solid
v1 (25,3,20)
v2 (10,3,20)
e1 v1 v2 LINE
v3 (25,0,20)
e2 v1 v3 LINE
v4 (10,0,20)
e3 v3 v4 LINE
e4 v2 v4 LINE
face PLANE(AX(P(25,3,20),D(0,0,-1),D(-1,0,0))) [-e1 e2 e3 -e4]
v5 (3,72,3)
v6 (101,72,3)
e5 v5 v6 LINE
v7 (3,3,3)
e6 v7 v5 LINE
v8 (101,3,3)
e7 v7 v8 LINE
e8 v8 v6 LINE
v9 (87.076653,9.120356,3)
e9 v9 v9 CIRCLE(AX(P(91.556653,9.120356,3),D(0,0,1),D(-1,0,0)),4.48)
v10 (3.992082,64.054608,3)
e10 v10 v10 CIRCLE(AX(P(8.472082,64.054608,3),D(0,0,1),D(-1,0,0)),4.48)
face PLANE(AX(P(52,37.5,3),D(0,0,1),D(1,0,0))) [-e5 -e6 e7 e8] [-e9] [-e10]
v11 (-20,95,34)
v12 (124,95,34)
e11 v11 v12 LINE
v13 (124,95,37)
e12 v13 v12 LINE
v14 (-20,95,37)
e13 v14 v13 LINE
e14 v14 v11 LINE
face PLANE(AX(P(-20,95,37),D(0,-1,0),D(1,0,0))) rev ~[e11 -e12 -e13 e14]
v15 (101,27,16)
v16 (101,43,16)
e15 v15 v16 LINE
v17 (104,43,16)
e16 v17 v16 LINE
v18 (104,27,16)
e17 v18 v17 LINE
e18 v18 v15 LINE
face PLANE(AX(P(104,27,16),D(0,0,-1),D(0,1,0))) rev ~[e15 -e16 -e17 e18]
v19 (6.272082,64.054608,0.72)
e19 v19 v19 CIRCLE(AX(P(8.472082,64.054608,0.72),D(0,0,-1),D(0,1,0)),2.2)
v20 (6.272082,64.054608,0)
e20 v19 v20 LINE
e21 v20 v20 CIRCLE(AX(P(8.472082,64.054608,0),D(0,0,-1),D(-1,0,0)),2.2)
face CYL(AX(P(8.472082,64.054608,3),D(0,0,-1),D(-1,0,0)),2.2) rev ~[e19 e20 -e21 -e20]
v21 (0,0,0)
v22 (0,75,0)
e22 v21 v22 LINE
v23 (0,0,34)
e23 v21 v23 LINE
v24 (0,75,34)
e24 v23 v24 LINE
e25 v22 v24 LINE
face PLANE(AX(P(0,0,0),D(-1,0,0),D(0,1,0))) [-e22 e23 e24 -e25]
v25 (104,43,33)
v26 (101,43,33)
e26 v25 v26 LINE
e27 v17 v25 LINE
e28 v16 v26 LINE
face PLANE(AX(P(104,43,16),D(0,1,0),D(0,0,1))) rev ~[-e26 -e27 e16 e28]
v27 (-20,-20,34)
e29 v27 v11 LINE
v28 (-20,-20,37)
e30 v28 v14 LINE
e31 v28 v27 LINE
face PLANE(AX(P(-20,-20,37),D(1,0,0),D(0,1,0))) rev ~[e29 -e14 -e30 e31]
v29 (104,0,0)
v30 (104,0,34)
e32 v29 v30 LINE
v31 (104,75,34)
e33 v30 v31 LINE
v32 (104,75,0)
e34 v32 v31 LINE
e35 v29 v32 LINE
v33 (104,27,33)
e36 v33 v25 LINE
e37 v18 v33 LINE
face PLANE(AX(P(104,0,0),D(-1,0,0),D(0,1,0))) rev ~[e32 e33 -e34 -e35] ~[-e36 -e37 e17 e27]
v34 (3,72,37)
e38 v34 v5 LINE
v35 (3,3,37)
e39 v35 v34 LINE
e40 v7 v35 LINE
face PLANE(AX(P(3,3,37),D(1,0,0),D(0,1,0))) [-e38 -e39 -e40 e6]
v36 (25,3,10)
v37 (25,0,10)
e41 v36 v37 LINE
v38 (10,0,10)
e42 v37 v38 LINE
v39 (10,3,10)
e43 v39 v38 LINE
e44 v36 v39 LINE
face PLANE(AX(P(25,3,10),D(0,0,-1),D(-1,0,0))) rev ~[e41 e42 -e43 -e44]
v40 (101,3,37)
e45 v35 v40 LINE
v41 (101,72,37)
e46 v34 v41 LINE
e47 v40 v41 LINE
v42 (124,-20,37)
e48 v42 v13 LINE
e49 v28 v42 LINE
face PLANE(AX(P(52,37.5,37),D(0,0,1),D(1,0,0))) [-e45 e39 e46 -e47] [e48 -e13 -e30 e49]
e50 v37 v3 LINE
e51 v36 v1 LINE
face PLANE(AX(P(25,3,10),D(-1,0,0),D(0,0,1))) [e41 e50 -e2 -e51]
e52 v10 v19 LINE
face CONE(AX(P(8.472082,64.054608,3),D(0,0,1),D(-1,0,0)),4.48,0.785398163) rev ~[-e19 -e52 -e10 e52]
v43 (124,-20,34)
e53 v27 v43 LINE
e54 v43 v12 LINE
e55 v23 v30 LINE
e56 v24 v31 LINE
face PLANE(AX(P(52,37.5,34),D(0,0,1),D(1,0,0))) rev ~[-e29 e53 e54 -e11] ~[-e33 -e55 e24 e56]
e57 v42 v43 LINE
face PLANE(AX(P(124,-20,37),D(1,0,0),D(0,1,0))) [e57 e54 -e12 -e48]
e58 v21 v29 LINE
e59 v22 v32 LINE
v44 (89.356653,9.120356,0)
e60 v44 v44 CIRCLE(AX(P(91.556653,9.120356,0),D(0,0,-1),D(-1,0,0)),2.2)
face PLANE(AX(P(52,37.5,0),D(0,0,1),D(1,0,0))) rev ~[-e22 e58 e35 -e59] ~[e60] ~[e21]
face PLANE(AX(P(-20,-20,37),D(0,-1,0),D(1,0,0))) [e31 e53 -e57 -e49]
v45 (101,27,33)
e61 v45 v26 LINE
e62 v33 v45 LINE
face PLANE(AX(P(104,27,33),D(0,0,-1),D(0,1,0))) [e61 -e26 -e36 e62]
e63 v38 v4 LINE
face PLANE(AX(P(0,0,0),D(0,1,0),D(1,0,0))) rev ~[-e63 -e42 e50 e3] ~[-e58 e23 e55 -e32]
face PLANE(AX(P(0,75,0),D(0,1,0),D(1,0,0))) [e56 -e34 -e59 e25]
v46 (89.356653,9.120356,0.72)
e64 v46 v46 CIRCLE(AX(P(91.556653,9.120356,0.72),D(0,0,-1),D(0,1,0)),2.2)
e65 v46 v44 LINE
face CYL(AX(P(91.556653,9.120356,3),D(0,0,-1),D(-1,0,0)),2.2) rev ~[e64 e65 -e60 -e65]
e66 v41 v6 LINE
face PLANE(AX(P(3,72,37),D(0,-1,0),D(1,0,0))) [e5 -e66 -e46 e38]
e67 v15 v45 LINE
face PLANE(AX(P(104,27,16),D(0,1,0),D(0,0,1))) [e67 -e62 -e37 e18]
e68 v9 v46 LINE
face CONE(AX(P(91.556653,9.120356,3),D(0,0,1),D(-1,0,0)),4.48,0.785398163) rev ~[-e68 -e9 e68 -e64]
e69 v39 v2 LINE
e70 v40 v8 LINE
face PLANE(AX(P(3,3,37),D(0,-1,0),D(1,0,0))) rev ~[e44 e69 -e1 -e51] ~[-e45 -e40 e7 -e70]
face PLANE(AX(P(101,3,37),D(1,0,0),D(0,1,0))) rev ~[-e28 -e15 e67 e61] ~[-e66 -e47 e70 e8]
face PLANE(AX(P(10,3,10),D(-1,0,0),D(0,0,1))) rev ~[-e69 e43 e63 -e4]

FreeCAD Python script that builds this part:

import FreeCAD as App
import Part
import Sketcher


def faces_at(feature, points):
    """Names of the faces that lie closest to the given points."""
    faces = feature.Shape.Faces
    near = lambda p: min(range(len(faces)), key=lambda i: faces[i].distToShape(Part.Vertex(*p))[0])
    return sorted({f"Face{near(p) + 1}" for p in points})

doc = App.newDocument("Part")
body = doc.addObject("PartDesign::Body", "Body")

sketch1 = body.newObject("Sketcher::SketchObject", "Sketch")
sketch1.AttachmentSupport = (doc.getObject("XY_Plane"), [""])
sketch1.MapMode = "FlatFace"
sketch1.addGeometry(Part.LineSegment(App.Vector(0, 75, 0), App.Vector(0, 0, 0)), False)
sketch1.addGeometry(Part.LineSegment(App.Vector(0, 0, 0), App.Vector(104, 0, 0)), False)
sketch1.addGeometry(Part.LineSegment(App.Vector(104, 0, 0), App.Vector(104, 75, 0)), False)
sketch1.addGeometry(Part.LineSegment(App.Vector(104, 75, 0), App.Vector(0, 75, 0)), False)
sketch1.addConstraint(Sketcher.Constraint("Coincident", 0, 2, 1, 1))
sketch1.addConstraint(Sketcher.Constraint("Coincident", 1, 2, 2, 1))
sketch1.addConstraint(Sketcher.Constraint("Coincident", 2, 2, 3, 1))
sketch1.addConstraint(Sketcher.Constraint("Coincident", 3, 2, 0, 1))
sketch1.addConstraint(Sketcher.Constraint("Vertical", 0))
sketch1.addConstraint(Sketcher.Constraint("Horizontal", 1))
sketch1.addConstraint(Sketcher.Constraint("Vertical", 2))
sketch1.addConstraint(Sketcher.Constraint("Horizontal", 3))
sketch1.addConstraint(Sketcher.Constraint("Coincident", 0, 2, -1, 1))
sketch1.addConstraint(Sketcher.Constraint("DistanceX", 1, 1, 1, 2, 104.0))
sketch1.addConstraint(Sketcher.Constraint("DistanceY", 0, 2, 0, 1, 75.0))
pad1 = body.newObject("PartDesign::Pad", "Pad")
pad1.Profile = sketch1
pad1.Length = 37
doc.recompute()

thickness = body.newObject("PartDesign::Thickness", "Thickness")
thickness.Base = (pad1, faces_at(pad1, [(52, 37.5, 37)]))
thickness.Value = 3
thickness.Reversed = True
thickness.Join = "Arc"

sketch2 = body.newObject("Sketcher::SketchObject", "Sketch001")
sketch2.AttachmentSupport = (doc.getObject("XY_Plane"), [""])
sketch2.MapMode = "FlatFace"
sketch2.AttachmentOffset = App.Placement(App.Vector(0, 0, 3), App.Rotation())
sketch2.addGeometry(Part.Circle(App.Vector(8.5, 64.1, 0), App.Vector(0, 0, 1), 2.2), False)
sketch2.addConstraint(Sketcher.Constraint("Diameter", 0, 4.4))
sketch2.addConstraint(Sketcher.Constraint("DistanceY", -1, 1, 0, 3, 64.054608))
sketch2.addConstraint(Sketcher.Constraint("DistanceX", -1, 1, 0, 3, 8.472082))
doc.recompute()
hole = body.newObject("PartDesign::Hole", "Hole")
hole.Profile = sketch2
hole.ThreadType = "None"
hole.Diameter = 4.4
hole.DepthType = "ThroughAll"
hole.HoleCutType = "Countersink"
hole.HoleCutDiameter = 8.96
hole.HoleCutCountersinkAngle = 90

sketch3 = body.newObject("Sketcher::SketchObject", "Sketch002")
sketch3.AttachmentSupport = (doc.getObject("XY_Plane"), [""])
sketch3.MapMode = "FlatFace"
sketch3.AttachmentOffset = App.Placement(App.Vector(0, 0, 3), App.Rotation())
sketch3.addGeometry(Part.Circle(App.Vector(91.6, 9.1, 0), App.Vector(0, 0, 1), 2.2), False)
sketch3.addConstraint(Sketcher.Constraint("Diameter", 0, 4.4))
sketch3.addConstraint(Sketcher.Constraint("DistanceX", -1, 1, 0, 3, 91.556653))
sketch3.addConstraint(Sketcher.Constraint("DistanceY", -1, 1, 0, 3, 9.120356))
doc.recompute()
hole2 = body.newObject("PartDesign::Hole", "Hole001")
hole2.Profile = sketch3
hole2.ThreadType = "None"
hole2.Diameter = 4.4
hole2.DepthType = "ThroughAll"
hole2.HoleCutType = "Countersink"
hole2.HoleCutDiameter = 8.96
hole2.HoleCutCountersinkAngle = 90

sketch4 = body.newObject("Sketcher::SketchObject", "Sketch003")
sketch4.AttachmentSupport = (doc.getObject("XZ_Plane"), [""])
sketch4.MapMode = "FlatFace"
sketch4.AttachmentOffset = App.Placement(App.Vector(0, 0, -3), App.Rotation())
sketch4.addGeometry(Part.LineSegment(App.Vector(25, 20, 0), App.Vector(25, 10, 0)), False)
sketch4.addGeometry(Part.LineSegment(App.Vector(25, 10, 0), App.Vector(10, 10, 0)), False)
sketch4.addGeometry(Part.LineSegment(App.Vector(10, 10, 0), App.Vector(10, 20, 0)), False)
sketch4.addGeometry(Part.LineSegment(App.Vector(10, 20, 0), App.Vector(25, 20, 0)), False)
sketch4.addConstraint(Sketcher.Constraint("Coincident", 0, 2, 1, 1))
sketch4.addConstraint(Sketcher.Constraint("Coincident", 1, 2, 2, 1))
sketch4.addConstraint(Sketcher.Constraint("Coincident", 2, 2, 3, 1))
sketch4.addConstraint(Sketcher.Constraint("Coincident", 3, 2, 0, 1))
sketch4.addConstraint(Sketcher.Constraint("Vertical", 0))
sketch4.addConstraint(Sketcher.Constraint("Horizontal", 1))
sketch4.addConstraint(Sketcher.Constraint("Vertical", 2))
sketch4.addConstraint(Sketcher.Constraint("Horizontal", 3))
sketch4.addConstraint(Sketcher.Constraint("DistanceX", 1, 2, 1, 1, 15.0))
sketch4.addConstraint(Sketcher.Constraint("DistanceY", 0, 2, 0, 1, 10.0))
sketch4.addConstraint(Sketcher.Constraint("DistanceX", -1, 1, 0, 2, 25.0))
sketch4.addConstraint(Sketcher.Constraint("DistanceY", -1, 1, 0, 2, 10.0))
pocket1 = body.newObject("PartDesign::Pocket", "Pocket")
pocket1.Profile = sketch4
pocket1.Length = 4
pocket1.Reversed = True

sketch5 = body.newObject("Sketcher::SketchObject", "Sketch004")
sketch5.AttachmentSupport = (doc.getObject("XY_Plane"), [""])
sketch5.MapMode = "FlatFace"
sketch5.AttachmentOffset = App.Placement(App.Vector(0, 0, 37), App.Rotation())
sketch5.addGeometry(Part.LineSegment(App.Vector(-20, 95, 0), App.Vector(-20, -20, 0)), False)
sketch5.addGeometry(Part.LineSegment(App.Vector(-20, -20, 0), App.Vector(124, -20, 0)), False)
sketch5.addGeometry(Part.LineSegment(App.Vector(124, -20, 0), App.Vector(124, 95, 0)), False)
sketch5.addGeometry(Part.LineSegment(App.Vector(124, 95, 0), App.Vector(-20, 95, 0)), False)
sketch5.addConstraint(Sketcher.Constraint("Coincident", 0, 2, 1, 1))
sketch5.addConstraint(Sketcher.Constraint("Coincident", 1, 2, 2, 1))
sketch5.addConstraint(Sketcher.Constraint("Coincident", 2, 2, 3, 1))
sketch5.addConstraint(Sketcher.Constraint("Coincident", 3, 2, 0, 1))
sketch5.addConstraint(Sketcher.Constraint("Vertical", 0))
sketch5.addConstraint(Sketcher.Constraint("Horizontal", 1))
sketch5.addConstraint(Sketcher.Constraint("Vertical", 2))
sketch5.addConstraint(Sketcher.Constraint("Horizontal", 3))
sketch5.addConstraint(Sketcher.Constraint("DistanceX", 1, 1, 1, 2, 144.0))
sketch5.addConstraint(Sketcher.Constraint("DistanceY", 0, 2, 0, 1, 115.0))
sketch5.addConstraint(Sketcher.Constraint("DistanceX", 0, 2, -1, 1, 20.0))
sketch5.addConstraint(Sketcher.Constraint("DistanceY", 0, 2, -1, 1, 20.0))
pad2 = body.newObject("PartDesign::Pad", "Pad001")
pad2.Profile = sketch5
pad2.Length = 3
pad2.Reversed = True

sketch6 = body.newObject("Sketcher::SketchObject", "Sketch005")
sketch6.AttachmentSupport = (doc.getObject("XY_Plane"), [""])
sketch6.MapMode = "FlatFace"
sketch6.AttachmentOffset = App.Placement(App.Vector(0, 0, 37), App.Rotation())
sketch6.addGeometry(Part.LineSegment(App.Vector(3, 72, 0), App.Vector(3, 3, 0)), False)
sketch6.addGeometry(Part.LineSegment(App.Vector(3, 3, 0), App.Vector(101, 3, 0)), False)
sketch6.addGeometry(Part.LineSegment(App.Vector(101, 3, 0), App.Vector(101, 72, 0)), False)
sketch6.addGeometry(Part.LineSegment(App.Vector(101, 72, 0), App.Vector(3, 72, 0)), False)
sketch6.addConstraint(Sketcher.Constraint("Coincident", 0, 2, 1, 1))
sketch6.addConstraint(Sketcher.Constraint("Coincident", 1, 2, 2, 1))
sketch6.addConstraint(Sketcher.Constraint("Coincident", 2, 2, 3, 1))
sketch6.addConstraint(Sketcher.Constraint("Coincident", 3, 2, 0, 1))
sketch6.addConstraint(Sketcher.Constraint("Vertical", 0))
sketch6.addConstraint(Sketcher.Constraint("Horizontal", 1))
sketch6.addConstraint(Sketcher.Constraint("Vertical", 2))
sketch6.addConstraint(Sketcher.Constraint("Horizontal", 3))
sketch6.addConstraint(Sketcher.Constraint("DistanceX", 1, 1, 1, 2, 98.0))
sketch6.addConstraint(Sketcher.Constraint("DistanceY", 0, 2, 0, 1, 69.0))
sketch6.addConstraint(Sketcher.Constraint("DistanceX", -1, 1, 0, 2, 3.0))
sketch6.addConstraint(Sketcher.Constraint("DistanceY", -1, 1, 0, 2, 3.0))
pocket2 = body.newObject("PartDesign::Pocket", "Pocket001")
pocket2.Profile = sketch6
pocket2.Length = 3

sketch7 = body.newObject("Sketcher::SketchObject", "Sketch006")
sketch7.AttachmentSupport = (doc.getObject("YZ_Plane"), [""])
sketch7.MapMode = "FlatFace"
sketch7.AttachmentOffset = App.Placement(App.Vector(0, 0, 104), App.Rotation())
sketch7.addGeometry(Part.LineSegment(App.Vector(27, 33, 0), App.Vector(27, 16, 0)), False)
sketch7.addGeometry(Part.LineSegment(App.Vector(27, 16, 0), App.Vector(43, 16, 0)), False)
sketch7.addGeometry(Part.LineSegment(App.Vector(43, 16, 0), App.Vector(43, 33, 0)), False)
sketch7.addGeometry(Part.LineSegment(App.Vector(43, 33, 0), App.Vector(27, 33, 0)), False)
sketch7.addConstraint(Sketcher.Constraint("Coincident", 0, 2, 1, 1))
sketch7.addConstraint(Sketcher.Constraint("Coincident", 1, 2, 2, 1))
sketch7.addConstraint(Sketcher.Constraint("Coincident", 2, 2, 3, 1))
sketch7.addConstraint(Sketcher.Constraint("Coincident", 3, 2, 0, 1))
sketch7.addConstraint(Sketcher.Constraint("Vertical", 0))
sketch7.addConstraint(Sketcher.Constraint("Horizontal", 1))
sketch7.addConstraint(Sketcher.Constraint("Vertical", 2))
sketch7.addConstraint(Sketcher.Constraint("Horizontal", 3))
sketch7.addConstraint(Sketcher.Constraint("DistanceX", 1, 1, 1, 2, 16.0))
sketch7.addConstraint(Sketcher.Constraint("DistanceY", 0, 2, 0, 1, 17.0))
sketch7.addConstraint(Sketcher.Constraint("DistanceX", -1, 1, 0, 2, 27.0))
sketch7.addConstraint(Sketcher.Constraint("DistanceY", -1, 1, 0, 2, 16.0))
pocket3 = body.newObject("PartDesign::Pocket", "Pocket002")
pocket3.Profile = sketch7
pocket3.Length = 3

doc.recompute()
